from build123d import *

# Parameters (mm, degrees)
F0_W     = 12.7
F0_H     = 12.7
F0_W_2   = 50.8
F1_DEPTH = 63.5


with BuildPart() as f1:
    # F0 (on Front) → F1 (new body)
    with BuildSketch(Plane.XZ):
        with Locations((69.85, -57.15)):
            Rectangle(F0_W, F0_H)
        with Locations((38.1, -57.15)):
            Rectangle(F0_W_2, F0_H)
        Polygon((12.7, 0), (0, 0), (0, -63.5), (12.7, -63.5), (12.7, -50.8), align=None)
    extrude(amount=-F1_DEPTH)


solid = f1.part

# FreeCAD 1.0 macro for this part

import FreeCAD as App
import Part
import Sketcher

V = App.Vector
Q = App.Units.Quantity


def add_polygon(sketch, points):
    """Adds a closed chain of lines whose ends are joined by coincident constraints."""
    first, n = sketch.GeometryCount, len(points)
    for a, b in zip(points, points[1:] + points[:1]):
        sketch.addGeometry(Part.LineSegment(App.Vector(*a, 0), App.Vector(*b, 0)), False)
    for i in range(n):
        sketch.addConstraint(Sketcher.Constraint("Coincident", first + i, 2, first + (i + 1) % n, 1))

doc = App.newDocument("Part")
params = doc.addObject("Spreadsheet::Sheet", "Params")
for row, (alias, value) in enumerate([
    ("sketch1_width", "3 in"),
    ("sketch1_height", "2 in"),
    ("pad1_length", "2.5 in"),
], start=1):
    params.set(f"A{row}", alias)
    params.set(f"B{row}", "=" + value)
    params.setAlias(f"B{row}", alias)

body = doc.addObject("PartDesign::Body", "Body")

# Sketch on XZ plane
sketch1 = doc.addObject("Sketcher::SketchObject", "Sketch")
body.addObject(sketch1)
sketch1.AttachmentSupport = (doc.XZ_Plane, [""])
sketch1.MapMode = "FlatFace"
add_polygon(sketch1, [(76, -64), (76, -51), (13, -51), (13, 0), (0, 0), (0, -64)])  # lines 0-5
sketch1.addConstraint([
    Sketcher.Constraint("Vertical", 0),
    Sketcher.Constraint("Horizontal", 1),
    Sketcher.Constraint("Vertical", 2),
    Sketcher.Constraint("Horizontal", 3),
    Sketcher.Constraint("Vertical", 4),
    Sketcher.Constraint("Horizontal", 5),
    Sketcher.Constraint("Coincident", 3, 2, -1, 1),
    Sketcher.Constraint("Equal", 3, 0),
    Sketcher.Constraint("Equal", 1, 4),
    Sketcher.Constraint("DistanceX", 5, 1, 5, 2, Q("3 in")),
    Sketcher.Constraint("DistanceY", 2, 1, 2, 2, Q("2 in")),
])
sketch1.setExpression("Constraints[15]", "Params.sketch1_width")
sketch1.setExpression("Constraints[16]", "Params.sketch1_height")
pad1 = doc.addObject("PartDesign::Pad", "Pad")
body.addObject(pad1)
pad1.Profile = sketch1
pad1.setExpression("Length", "Params.pad1_length")
pad1.Reversed = True

doc.recompute()
